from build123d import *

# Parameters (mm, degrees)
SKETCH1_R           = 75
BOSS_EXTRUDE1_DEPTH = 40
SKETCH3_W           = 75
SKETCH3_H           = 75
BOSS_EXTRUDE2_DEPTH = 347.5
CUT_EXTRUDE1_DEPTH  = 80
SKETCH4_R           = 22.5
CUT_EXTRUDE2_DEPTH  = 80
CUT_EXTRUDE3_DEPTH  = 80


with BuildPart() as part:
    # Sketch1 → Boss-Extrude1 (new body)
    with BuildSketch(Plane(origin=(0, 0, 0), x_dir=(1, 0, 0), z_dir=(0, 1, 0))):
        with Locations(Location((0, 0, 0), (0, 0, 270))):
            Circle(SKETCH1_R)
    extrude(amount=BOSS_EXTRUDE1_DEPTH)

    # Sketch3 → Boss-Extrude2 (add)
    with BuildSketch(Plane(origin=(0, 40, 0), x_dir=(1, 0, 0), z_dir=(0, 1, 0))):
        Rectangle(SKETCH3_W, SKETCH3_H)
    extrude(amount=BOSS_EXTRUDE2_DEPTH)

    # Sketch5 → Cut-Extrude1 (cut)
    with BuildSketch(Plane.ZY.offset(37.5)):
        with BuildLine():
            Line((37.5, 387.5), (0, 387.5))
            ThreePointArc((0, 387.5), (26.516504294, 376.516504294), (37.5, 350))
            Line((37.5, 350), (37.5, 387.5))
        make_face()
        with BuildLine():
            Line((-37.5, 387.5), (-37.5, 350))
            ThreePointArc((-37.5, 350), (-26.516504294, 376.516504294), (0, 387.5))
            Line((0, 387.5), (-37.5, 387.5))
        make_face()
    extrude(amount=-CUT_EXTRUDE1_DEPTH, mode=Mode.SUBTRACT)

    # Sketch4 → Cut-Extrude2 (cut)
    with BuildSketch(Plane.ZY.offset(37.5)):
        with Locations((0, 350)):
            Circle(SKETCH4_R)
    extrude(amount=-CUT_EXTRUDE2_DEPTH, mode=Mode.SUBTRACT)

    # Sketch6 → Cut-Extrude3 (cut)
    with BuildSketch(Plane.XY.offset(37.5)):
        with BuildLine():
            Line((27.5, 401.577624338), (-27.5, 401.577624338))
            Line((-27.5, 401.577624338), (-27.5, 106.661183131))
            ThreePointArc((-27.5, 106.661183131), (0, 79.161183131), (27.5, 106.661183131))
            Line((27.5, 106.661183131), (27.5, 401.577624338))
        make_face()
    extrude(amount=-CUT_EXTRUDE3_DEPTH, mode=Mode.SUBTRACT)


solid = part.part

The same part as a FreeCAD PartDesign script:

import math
import FreeCAD as App
import Part
import Sketcher
from FreeCAD import Vector
Q = App.Units.Quantity

doc = App.newDocument("Part")
body = doc.addObject("PartDesign::Body", "Body")

# Sketch on XZ plane
sketch1 = body.newObject("Sketcher::SketchObject", "Sketch")
sketch1.AttachmentSupport = (doc.getObject("XZ_Plane"), [""])
sketch1.MapMode = "FlatFace"
sketch1.addGeometry(Part.Circle(Vector(0, 0, 0), Vector(0, 0, 1), 75), False)
sketch1.addConstraint([
    Sketcher.Constraint("Coincident", 0, 3, -1, 1),
    Sketcher.Constraint("Diameter", 0, Q("150 mm")),
])
pad1 = body.newObject("PartDesign::Pad", "Pad")
pad1.Profile = sketch1
pad1.Length = 40
pad1.Reversed = True

# Sketch on XZ plane
sketch2 = body.newObject("Sketcher::SketchObject", "Sketch001")
sketch2.AttachmentSupport = (doc.getObject("XZ_Plane"), [""])
sketch2.MapMode = "FlatFace"
sketch2.AttachmentOffset = App.Placement(Vector(0, 0, -40), App.Rotation())
sketch2.addGeometry([
    Part.LineSegment(Vector(-38, -38, 0), Vector(-38, 38, 0)),
    Part.LineSegment(Vector(-38, 38, 0), Vector(38, 38, 0)),
    Part.LineSegment(Vector(38, 38, 0), Vector(38, -38, 0)),
    Part.LineSegment(Vector(38, -38, 0), Vector(-38, -38, 0)),
], False)
sketch2.addConstraint([
    Sketcher.Constraint("Coincident", 0, 2, 1, 1),
    Sketcher.Constraint("Coincident", 1, 2, 2, 1),
    Sketcher.Constraint("Coincident", 2, 2, 3, 1),
    Sketcher.Constraint("Coincident", 3, 2, 0, 1),
    Sketcher.Constraint("Vertical", 0),
    Sketcher.Constraint("Horizontal", 1),
    Sketcher.Constraint("Vertical", 2),
    Sketcher.Constraint("Horizontal", 3),
    Sketcher.Constraint("Symmetric", 0, 2, 2, 2, -1, 1),
    Sketcher.Constraint("Equal", 3, 0),
    Sketcher.Constraint("DistanceX", 1, 1, 1, 2, Q("75 mm")),
])
pad2 = body.newObject("PartDesign::Pad", "Pad001")
pad2.Profile = sketch2
pad2.Length = 347.5
pad2.Reversed = True

# Sketch on YZ plane
sketch3 = body.newObject("Sketcher::SketchObject", "Sketch002")
sketch3.AttachmentSupport = (doc.getObject("YZ_Plane"), [""])
sketch3.MapMode = "FlatFace"
sketch3.AttachmentOffset = App.Placement(Vector(0, 0, -37.5), App.Rotation())
sketch3.addGeometry([
    Part.LineSegment(Vector(388, 38, 0), Vector(388, 0, 0)),  # 0
    Part.ArcOfCircle(Part.Circle(Vector(350, 0, 0), Vector(0, 0, 1), 38), math.radians(0), math.radians(90)),  # 1
    Part.LineSegment(Vector(350, 38, 0), Vector(388, 38, 0)),  # 2
    Part.LineSegment(Vector(388, -38, 0), Vector(350, -38, 0)),  # 3
    Part.ArcOfCircle(Part.Circle(Vector(350, 0, 0), Vector(0, 0, 1), 38), math.radians(-90), math.radians(0)),  # 4
    Part.LineSegment(Vector(388, 0, 0), Vector(388, -38, 0)),  # 5
], False)
sketch3.addConstraint([
    Sketcher.Constraint("Tangent", 0, 2, 1, 1),
    Sketcher.Constraint("Tangent", 1, 2, 2, 1),
    Sketcher.Constraint("Coincident", 2, 2, 0, 1),
    Sketcher.Constraint("Tangent", 3, 2, 4, 1),
    Sketcher.Constraint("Tangent", 4, 2, 5, 1),
    Sketcher.Constraint("Coincident", 5, 2, 3, 1),
    Sketcher.Constraint("Vertical", 0),
    Sketcher.Constraint("Horizontal", 2),
    Sketcher.Constraint("Horizontal", 3),
    Sketcher.Constraint("Vertical", 5),
    Sketcher.Constraint("Coincident", 4, 3, 1, 3),
    Sketcher.Constraint("Equal", 1, 4),
    Sketcher.Constraint("PointOnObject", 1, 3, -1),
    Sketcher.Constraint("Radius", 1, Q("37.5 mm")),
    Sketcher.Constraint("DistanceX", -1, 1, 1, 3, Q("350 mm")),
])
pocket1 = body.newObject("PartDesign::Pocket", "Pocket")
pocket1.Profile = sketch3
pocket1.Length = 80
pocket1.Reversed = True

# Sketch on YZ plane
sketch4 = body.newObject("Sketcher::SketchObject", "Sketch003")
sketch4.AttachmentSupport = (doc.getObject("YZ_Plane"), [""])
sketch4.MapMode = "FlatFace"
sketch4.AttachmentOffset = App.Placement(Vector(0, 0, -37.5), App.Rotation())
sketch4.addGeometry(Part.Circle(Vector(350, 0, 0), Vector(0, 0, 1), 22), False)
sketch4.addConstraint([
    Sketcher.Constraint("PointOnObject", 0, 3, -1),
    Sketcher.Constraint("Diameter", 0, Q("45 mm")),
    Sketcher.Constraint("DistanceX", -1, 1, 0, 3, Q("350 mm")),
])
pocket2 = body.newObject("PartDesign::Pocket", "Pocket001")
pocket2.Profile = sketch4
pocket2.Length = 80
pocket2.Reversed = True

# Sketch on XY plane
sketch5 = body.newObject("Sketcher::SketchObject", "Sketch004")
sketch5.AttachmentSupport = (doc.getObject("XY_Plane"), [""])
sketch5.MapMode = "FlatFace"
sketch5.AttachmentOffset = App.Placement(Vector(0, 0, 37.5), App.Rotation())
sketch5.addGeometry([
    Part.LineSegment(Vector(28, 402, 0), Vector(-28, 402, 0)),
    Part.LineSegment(Vector(-28, 402, 0), Vector(-28, 107, 0)),
    Part.ArcOfCircle(Part.Circle(Vector(0, 107, 0), Vector(0, 0, 1), 28), math.radians(180), math.radians(360)),
    Part.LineSegment(Vector(28, 107, 0), Vector(28, 402, 0)),
], False)
sketch5.addConstraint([
    Sketcher.Constraint("Coincident", 0, 2, 1, 1),
    Sketcher.Constraint("Tangent", 1, 2, 2, 1),
    Sketcher.Constraint("Tangent", 2, 2, 3, 1),
    Sketcher.Constraint("Coincident", 3, 2, 0, 1),
    Sketcher.Constraint("Horizontal", 0),
    Sketcher.Constraint("Vertical", 1),
    Sketcher.Constraint("Vertical", 3),
    Sketcher.Constraint("PointOnObject", 2, 3, -2),
    Sketcher.Constraint("Radius", 2, Q("27.5 mm")),
    Sketcher.Constraint("DistanceY", 1, 2, 1, 1, Q("294.916441 mm")),
    Sketcher.Constraint("DistanceY", -1, 1, 2, 3, Q("106.661183 mm")),
])
pocket3 = body.newObject("PartDesign::Pocket", "Pocket002")
pocket3.Profile = sketch5
pocket3.Length = 80

doc.recompute()
